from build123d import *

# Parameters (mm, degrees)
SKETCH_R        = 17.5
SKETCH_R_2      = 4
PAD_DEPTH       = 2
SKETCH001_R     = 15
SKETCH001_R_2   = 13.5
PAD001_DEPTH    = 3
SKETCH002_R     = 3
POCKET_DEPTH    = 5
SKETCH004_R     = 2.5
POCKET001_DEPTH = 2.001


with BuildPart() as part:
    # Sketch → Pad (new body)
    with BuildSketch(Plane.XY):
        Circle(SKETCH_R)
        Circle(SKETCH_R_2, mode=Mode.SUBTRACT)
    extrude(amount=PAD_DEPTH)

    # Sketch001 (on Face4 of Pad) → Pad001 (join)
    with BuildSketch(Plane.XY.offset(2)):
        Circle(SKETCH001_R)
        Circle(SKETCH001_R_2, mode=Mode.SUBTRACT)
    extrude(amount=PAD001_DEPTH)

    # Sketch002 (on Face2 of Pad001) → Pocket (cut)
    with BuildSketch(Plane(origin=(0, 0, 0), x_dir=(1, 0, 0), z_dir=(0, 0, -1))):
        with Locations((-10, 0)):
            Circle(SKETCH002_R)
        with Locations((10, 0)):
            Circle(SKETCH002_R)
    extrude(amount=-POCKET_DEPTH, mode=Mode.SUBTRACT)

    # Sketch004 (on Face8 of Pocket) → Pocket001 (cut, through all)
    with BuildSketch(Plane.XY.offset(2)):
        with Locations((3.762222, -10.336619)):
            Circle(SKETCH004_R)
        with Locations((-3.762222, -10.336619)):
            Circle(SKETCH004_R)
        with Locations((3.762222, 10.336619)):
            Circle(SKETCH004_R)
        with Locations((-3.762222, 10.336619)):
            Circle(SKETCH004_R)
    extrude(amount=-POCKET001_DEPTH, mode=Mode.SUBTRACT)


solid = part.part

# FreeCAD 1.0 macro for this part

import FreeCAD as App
import Part
import Sketcher

doc = App.newDocument("Part")
params = doc.addObject("Spreadsheet::Sheet", "Params")
for row, (alias, value) in enumerate([
    ("sketch1_diameter", "35 mm"),
    ("sketch1_diameter2", "8 mm"),
    ("pad1_length", "2 mm"),
    ("sketch2_diameter", "30 mm"),
    ("sketch2_diameter2", "27 mm"),
    ("pad2_length", "3 mm"),
    ("sketch3_diameter", "6 mm"),
    ("pocket1_length", "5 mm"),
    ("sketch4_diameter", "5 mm"),
], start=1):
    params.set(f"A{row}", alias)
    params.set(f"B{row}", "=" + value)
    params.setAlias(f"B{row}", alias)

body = doc.addObject("PartDesign::Body", "Body")

# Sketch on XY plane
sketch1 = body.newObject("Sketcher::SketchObject", "Sketch")
sketch1.AttachmentSupport = (doc.getObject("XY_Plane"), [""])
sketch1.MapMode = "FlatFace"
sketch1.addGeometry(Part.Circle(App.Vector(0, 0, 0), App.Vector(0, 0, 1), 17.5), False)
sketch1.addGeometry(Part.Circle(App.Vector(0, 0, 0), App.Vector(0, 0, 1), 4), False)
sketch1.addConstraint(Sketcher.Constraint("Coincident", 0, 3, -1, 1))
sketch1.addConstraint(Sketcher.Constraint("Coincident", 1, 3, -1, 1))
sketch1.addConstraint(Sketcher.Constraint("Diameter", 0, 35.0))
sketch1.addConstraint(Sketcher.Constraint("Diameter", 1, 8.0))
sketch1.setExpression("Constraints[2]", "Params.sketch1_diameter")
sketch1.setExpression("Constraints[3]", "Params.sketch1_diameter2")
pad1 = body.newObject("PartDesign::Pad", "Pad")
pad1.Profile = sketch1
pad1.setExpression("Length", "Params.pad1_length")

# Sketch on XY plane
sketch2 = body.newObject("Sketcher::SketchObject", "Sketch001")
sketch2.AttachmentSupport = (doc.getObject("XY_Plane"), [""])
sketch2.MapMode = "FlatFace"
sketch2.AttachmentOffset = App.Placement(App.Vector(0, 0, 2), App.Rotation())
sketch2.addGeometry(Part.Circle(App.Vector(0, 0, 0), App.Vector(0, 0, 1), 15), False)
sketch2.addGeometry(Part.Circle(App.Vector(0, 0, 0), App.Vector(0, 0, 1), 14), False)
sketch2.addConstraint(Sketcher.Constraint("Coincident", 0, 3, -1, 1))
sketch2.addConstraint(Sketcher.Constraint("Coincident", 1, 3, -1, 1))
sketch2.addConstraint(Sketcher.Constraint("Diameter", 0, 30.0))
sketch2.addConstraint(Sketcher.Constraint("Diameter", 1, 27.0))
sketch2.setExpression("Constraints[2]", "Params.sketch2_diameter")
sketch2.setExpression("Constraints[3]", "Params.sketch2_diameter2")
pad2 = body.newObject("PartDesign::Pad", "Pad001")
pad2.Profile = sketch2
pad2.setExpression("Length", "Params.pad2_length")

# Sketch on XY plane
sketch3 = body.newObject("Sketcher::SketchObject", "Sketch002")
sketch3.AttachmentSupport = (doc.getObject("XY_Plane"), [""])
sketch3.MapMode = "FlatFace"
sketch3.addGeometry(Part.Circle(App.Vector(-10, 0, 0), App.Vector(0, 0, 1), 3), False)
sketch3.addGeometry(Part.Circle(App.Vector(10, 0, 0), App.Vector(0, 0, 1), 3), False)
sketch3.addConstraint(Sketcher.Constraint("Equal", 0, 1))
sketch3.addConstraint(Sketcher.Constraint("Symmetric", 0, 3, 1, 3, -1, 1))
sketch3.addConstraint(Sketcher.Constraint("PointOnObject", 0, 3, -1))
sketch3.addConstraint(Sketcher.Constraint("Diameter", 0, 6.0))
sketch3.addConstraint(Sketcher.Constraint("DistanceX", 0, 3, -1, 1, 10.0))
sketch3.setExpression("Constraints[3]", "Params.sketch3_diameter")
pocket1 = body.newObject("PartDesign::Pocket", "Pocket")
pocket1.Profile = sketch3
pocket1.setExpression("Length", "Params.pocket1_length")
pocket1.Reversed = True

# Sketch on XY plane
sketch4 = body.newObject("Sketcher::SketchObject", "Sketch003")
sketch4.AttachmentSupport = (doc.getObject("XY_Plane"), [""])
sketch4.MapMode = "FlatFace"
sketch4.AttachmentOffset = App.Placement(App.Vector(0, 0, 2), App.Rotation())
sketch4.addGeometry(Part.Circle(App.Vector(3.8, -10.3, 0), App.Vector(0, 0, 1), 2.5), False)
sketch4.addGeometry(Part.Circle(App.Vector(-3.8, -10.3, 0), App.Vector(0, 0, 1), 2.5), False)
sketch4.addGeometry(Part.Circle(App.Vector(3.8, 10.3, 0), App.Vector(0, 0, 1), 2.5), False)
sketch4.addGeometry(Part.Circle(App.Vector(-3.8, 10.3, 0), App.Vector(0, 0, 1), 2.5), False)
sketch4.addConstraint(Sketcher.Constraint("Equal", 0, 1))
sketch4.addConstraint(Sketcher.Constraint("Equal", 1, 2))
sketch4.addConstraint(Sketcher.Constraint("Equal", 2, 3))
sketch4.addConstraint(Sketcher.Constraint("Symmetric", 1, 3, 2, 3, -1, 1))
sketch4.addConstraint(Sketcher.Constraint("Symmetric", 0, 3, 3, 3, -1, 1))
sketch4.addConstraint(Sketcher.Constraint("Symmetric", 0, 3, 1, 3, -2))
sketch4.addConstraint(Sketcher.Constraint("Diameter", 0, 5.0))
sketch4.addConstraint(Sketcher.Constraint("DistanceX", -1, 1, 0, 3, 3.762222))
sketch4.addConstraint(Sketcher.Constraint("DistanceY", 0, 3, -1, 1, 10.336619))
sketch4.setExpression("Constraints[6]", "Params.sketch4_diameter")
pocket2 = body.newObject("PartDesign::Pocket", "Pocket001")
pocket2.Profile = sketch4
pocket2.Type = "ThroughAll"

doc.recompute()
